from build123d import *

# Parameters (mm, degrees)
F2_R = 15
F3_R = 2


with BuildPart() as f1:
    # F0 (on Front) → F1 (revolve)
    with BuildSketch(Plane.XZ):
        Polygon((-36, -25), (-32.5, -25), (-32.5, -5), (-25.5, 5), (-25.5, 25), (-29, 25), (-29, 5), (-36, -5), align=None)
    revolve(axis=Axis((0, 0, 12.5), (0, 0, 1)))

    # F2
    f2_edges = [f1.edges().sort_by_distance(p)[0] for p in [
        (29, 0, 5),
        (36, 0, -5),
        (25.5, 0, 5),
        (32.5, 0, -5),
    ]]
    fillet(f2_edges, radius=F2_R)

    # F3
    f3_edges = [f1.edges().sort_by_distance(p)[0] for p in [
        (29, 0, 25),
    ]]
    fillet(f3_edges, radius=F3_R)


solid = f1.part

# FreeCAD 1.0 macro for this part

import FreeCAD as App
import Part
import Sketcher


def edges_at(feature, points):
    """Names of the edges that pass closest to the given points."""
    edges = feature.Shape.Edges
    near = lambda p: min(range(len(edges)), key=lambda i: edges[i].distToShape(Part.Vertex(*p))[0])
    return sorted({f"Edge{near(p) + 1}" for p in points})


def add_polygon(sketch, points):
    """Adds a closed chain of lines whose ends are joined by coincident constraints."""
    first, n = sketch.GeometryCount, len(points)
    for a, b in zip(points, points[1:] + points[:1]):
        sketch.addGeometry(Part.LineSegment(App.Vector(*a, 0), App.Vector(*b, 0)), False)
    for i in range(n):
        sketch.addConstraint(Sketcher.Constraint("Coincident", first + i, 2, first + (i + 1) % n, 1))

doc = App.newDocument("Part")
body = doc.addObject("PartDesign::Body", "Body")

sketch1 = body.newObject("Sketcher::SketchObject", "Sketch")
sketch1.AttachmentSupport = (doc.getObject("XZ_Plane"), [""])
sketch1.MapMode = "FlatFace"
add_polygon(sketch1, [(-36, -25), (-32.5, -25), (-32.5, -5), (-25.5, 5), (-25.5, 25), (-29, 25), (-29, 5), (-36, -5)])
sketch1.addConstraint(Sketcher.Constraint("Horizontal", 0))
sketch1.addConstraint(Sketcher.Constraint("Vertical", 1))
sketch1.addConstraint(Sketcher.Constraint("Vertical", 3))
sketch1.addConstraint(Sketcher.Constraint("Horizontal", 4))
sketch1.addConstraint(Sketcher.Constraint("Vertical", 5))
sketch1.addConstraint(Sketcher.Constraint("Vertical", 7))
sketch1.addConstraint(Sketcher.Constraint("Parallel", 2, 6))
sketch1.addConstraint(Sketcher.Constraint("Horizontal", 2, 2, 5, 2))
sketch1.addConstraint(Sketcher.Constraint("Horizontal", 1, 2, 6, 2))
sketch1.addConstraint(Sketcher.Constraint("Equal", 1, 3))
sketch1.addConstraint(Sketcher.Constraint("DistanceY", 1, 1, 1, 2, 20.0))
sketch1.addConstraint(Sketcher.Constraint("DistanceX", 0, 1, 0, 2, 3.5))
sketch1.addConstraint(Sketcher.Constraint("DistanceY", 0, 2, -1, 1, 25.0))
sketch1.addConstraint(Sketcher.Constraint("DistanceY", -1, 1, 2, 2, 5.0))
sketch1.addConstraint(Sketcher.Constraint("DistanceX", 4, 2, -1, 1, 29.0))
sketch1.addConstraint(Sketcher.Constraint("DistanceX", 6, 2, -1, 1, 36.0))
revolution = body.newObject("PartDesign::Revolution", "Revolution")
revolution.Profile = sketch1
revolution.ReferenceAxis = (sketch1, ["V_Axis"])
revolution.Angle = 360
doc.recompute()

fillet = body.newObject("PartDesign::Fillet", "Fillet")
fillet.Base = (revolution, edges_at(revolution, [
    (29, 0, 5),
    (36, 0, -5),
    (25.5, 0, 5),
    (32.5, 0, -5),
]))
fillet.Radius = 15
doc.recompute()

fillet2 = body.newObject("PartDesign::Fillet", "Fillet001")
fillet2.Base = (fillet, edges_at(fillet, [(29, 0, 25)]))
fillet2.Radius = 2

doc.recompute()
